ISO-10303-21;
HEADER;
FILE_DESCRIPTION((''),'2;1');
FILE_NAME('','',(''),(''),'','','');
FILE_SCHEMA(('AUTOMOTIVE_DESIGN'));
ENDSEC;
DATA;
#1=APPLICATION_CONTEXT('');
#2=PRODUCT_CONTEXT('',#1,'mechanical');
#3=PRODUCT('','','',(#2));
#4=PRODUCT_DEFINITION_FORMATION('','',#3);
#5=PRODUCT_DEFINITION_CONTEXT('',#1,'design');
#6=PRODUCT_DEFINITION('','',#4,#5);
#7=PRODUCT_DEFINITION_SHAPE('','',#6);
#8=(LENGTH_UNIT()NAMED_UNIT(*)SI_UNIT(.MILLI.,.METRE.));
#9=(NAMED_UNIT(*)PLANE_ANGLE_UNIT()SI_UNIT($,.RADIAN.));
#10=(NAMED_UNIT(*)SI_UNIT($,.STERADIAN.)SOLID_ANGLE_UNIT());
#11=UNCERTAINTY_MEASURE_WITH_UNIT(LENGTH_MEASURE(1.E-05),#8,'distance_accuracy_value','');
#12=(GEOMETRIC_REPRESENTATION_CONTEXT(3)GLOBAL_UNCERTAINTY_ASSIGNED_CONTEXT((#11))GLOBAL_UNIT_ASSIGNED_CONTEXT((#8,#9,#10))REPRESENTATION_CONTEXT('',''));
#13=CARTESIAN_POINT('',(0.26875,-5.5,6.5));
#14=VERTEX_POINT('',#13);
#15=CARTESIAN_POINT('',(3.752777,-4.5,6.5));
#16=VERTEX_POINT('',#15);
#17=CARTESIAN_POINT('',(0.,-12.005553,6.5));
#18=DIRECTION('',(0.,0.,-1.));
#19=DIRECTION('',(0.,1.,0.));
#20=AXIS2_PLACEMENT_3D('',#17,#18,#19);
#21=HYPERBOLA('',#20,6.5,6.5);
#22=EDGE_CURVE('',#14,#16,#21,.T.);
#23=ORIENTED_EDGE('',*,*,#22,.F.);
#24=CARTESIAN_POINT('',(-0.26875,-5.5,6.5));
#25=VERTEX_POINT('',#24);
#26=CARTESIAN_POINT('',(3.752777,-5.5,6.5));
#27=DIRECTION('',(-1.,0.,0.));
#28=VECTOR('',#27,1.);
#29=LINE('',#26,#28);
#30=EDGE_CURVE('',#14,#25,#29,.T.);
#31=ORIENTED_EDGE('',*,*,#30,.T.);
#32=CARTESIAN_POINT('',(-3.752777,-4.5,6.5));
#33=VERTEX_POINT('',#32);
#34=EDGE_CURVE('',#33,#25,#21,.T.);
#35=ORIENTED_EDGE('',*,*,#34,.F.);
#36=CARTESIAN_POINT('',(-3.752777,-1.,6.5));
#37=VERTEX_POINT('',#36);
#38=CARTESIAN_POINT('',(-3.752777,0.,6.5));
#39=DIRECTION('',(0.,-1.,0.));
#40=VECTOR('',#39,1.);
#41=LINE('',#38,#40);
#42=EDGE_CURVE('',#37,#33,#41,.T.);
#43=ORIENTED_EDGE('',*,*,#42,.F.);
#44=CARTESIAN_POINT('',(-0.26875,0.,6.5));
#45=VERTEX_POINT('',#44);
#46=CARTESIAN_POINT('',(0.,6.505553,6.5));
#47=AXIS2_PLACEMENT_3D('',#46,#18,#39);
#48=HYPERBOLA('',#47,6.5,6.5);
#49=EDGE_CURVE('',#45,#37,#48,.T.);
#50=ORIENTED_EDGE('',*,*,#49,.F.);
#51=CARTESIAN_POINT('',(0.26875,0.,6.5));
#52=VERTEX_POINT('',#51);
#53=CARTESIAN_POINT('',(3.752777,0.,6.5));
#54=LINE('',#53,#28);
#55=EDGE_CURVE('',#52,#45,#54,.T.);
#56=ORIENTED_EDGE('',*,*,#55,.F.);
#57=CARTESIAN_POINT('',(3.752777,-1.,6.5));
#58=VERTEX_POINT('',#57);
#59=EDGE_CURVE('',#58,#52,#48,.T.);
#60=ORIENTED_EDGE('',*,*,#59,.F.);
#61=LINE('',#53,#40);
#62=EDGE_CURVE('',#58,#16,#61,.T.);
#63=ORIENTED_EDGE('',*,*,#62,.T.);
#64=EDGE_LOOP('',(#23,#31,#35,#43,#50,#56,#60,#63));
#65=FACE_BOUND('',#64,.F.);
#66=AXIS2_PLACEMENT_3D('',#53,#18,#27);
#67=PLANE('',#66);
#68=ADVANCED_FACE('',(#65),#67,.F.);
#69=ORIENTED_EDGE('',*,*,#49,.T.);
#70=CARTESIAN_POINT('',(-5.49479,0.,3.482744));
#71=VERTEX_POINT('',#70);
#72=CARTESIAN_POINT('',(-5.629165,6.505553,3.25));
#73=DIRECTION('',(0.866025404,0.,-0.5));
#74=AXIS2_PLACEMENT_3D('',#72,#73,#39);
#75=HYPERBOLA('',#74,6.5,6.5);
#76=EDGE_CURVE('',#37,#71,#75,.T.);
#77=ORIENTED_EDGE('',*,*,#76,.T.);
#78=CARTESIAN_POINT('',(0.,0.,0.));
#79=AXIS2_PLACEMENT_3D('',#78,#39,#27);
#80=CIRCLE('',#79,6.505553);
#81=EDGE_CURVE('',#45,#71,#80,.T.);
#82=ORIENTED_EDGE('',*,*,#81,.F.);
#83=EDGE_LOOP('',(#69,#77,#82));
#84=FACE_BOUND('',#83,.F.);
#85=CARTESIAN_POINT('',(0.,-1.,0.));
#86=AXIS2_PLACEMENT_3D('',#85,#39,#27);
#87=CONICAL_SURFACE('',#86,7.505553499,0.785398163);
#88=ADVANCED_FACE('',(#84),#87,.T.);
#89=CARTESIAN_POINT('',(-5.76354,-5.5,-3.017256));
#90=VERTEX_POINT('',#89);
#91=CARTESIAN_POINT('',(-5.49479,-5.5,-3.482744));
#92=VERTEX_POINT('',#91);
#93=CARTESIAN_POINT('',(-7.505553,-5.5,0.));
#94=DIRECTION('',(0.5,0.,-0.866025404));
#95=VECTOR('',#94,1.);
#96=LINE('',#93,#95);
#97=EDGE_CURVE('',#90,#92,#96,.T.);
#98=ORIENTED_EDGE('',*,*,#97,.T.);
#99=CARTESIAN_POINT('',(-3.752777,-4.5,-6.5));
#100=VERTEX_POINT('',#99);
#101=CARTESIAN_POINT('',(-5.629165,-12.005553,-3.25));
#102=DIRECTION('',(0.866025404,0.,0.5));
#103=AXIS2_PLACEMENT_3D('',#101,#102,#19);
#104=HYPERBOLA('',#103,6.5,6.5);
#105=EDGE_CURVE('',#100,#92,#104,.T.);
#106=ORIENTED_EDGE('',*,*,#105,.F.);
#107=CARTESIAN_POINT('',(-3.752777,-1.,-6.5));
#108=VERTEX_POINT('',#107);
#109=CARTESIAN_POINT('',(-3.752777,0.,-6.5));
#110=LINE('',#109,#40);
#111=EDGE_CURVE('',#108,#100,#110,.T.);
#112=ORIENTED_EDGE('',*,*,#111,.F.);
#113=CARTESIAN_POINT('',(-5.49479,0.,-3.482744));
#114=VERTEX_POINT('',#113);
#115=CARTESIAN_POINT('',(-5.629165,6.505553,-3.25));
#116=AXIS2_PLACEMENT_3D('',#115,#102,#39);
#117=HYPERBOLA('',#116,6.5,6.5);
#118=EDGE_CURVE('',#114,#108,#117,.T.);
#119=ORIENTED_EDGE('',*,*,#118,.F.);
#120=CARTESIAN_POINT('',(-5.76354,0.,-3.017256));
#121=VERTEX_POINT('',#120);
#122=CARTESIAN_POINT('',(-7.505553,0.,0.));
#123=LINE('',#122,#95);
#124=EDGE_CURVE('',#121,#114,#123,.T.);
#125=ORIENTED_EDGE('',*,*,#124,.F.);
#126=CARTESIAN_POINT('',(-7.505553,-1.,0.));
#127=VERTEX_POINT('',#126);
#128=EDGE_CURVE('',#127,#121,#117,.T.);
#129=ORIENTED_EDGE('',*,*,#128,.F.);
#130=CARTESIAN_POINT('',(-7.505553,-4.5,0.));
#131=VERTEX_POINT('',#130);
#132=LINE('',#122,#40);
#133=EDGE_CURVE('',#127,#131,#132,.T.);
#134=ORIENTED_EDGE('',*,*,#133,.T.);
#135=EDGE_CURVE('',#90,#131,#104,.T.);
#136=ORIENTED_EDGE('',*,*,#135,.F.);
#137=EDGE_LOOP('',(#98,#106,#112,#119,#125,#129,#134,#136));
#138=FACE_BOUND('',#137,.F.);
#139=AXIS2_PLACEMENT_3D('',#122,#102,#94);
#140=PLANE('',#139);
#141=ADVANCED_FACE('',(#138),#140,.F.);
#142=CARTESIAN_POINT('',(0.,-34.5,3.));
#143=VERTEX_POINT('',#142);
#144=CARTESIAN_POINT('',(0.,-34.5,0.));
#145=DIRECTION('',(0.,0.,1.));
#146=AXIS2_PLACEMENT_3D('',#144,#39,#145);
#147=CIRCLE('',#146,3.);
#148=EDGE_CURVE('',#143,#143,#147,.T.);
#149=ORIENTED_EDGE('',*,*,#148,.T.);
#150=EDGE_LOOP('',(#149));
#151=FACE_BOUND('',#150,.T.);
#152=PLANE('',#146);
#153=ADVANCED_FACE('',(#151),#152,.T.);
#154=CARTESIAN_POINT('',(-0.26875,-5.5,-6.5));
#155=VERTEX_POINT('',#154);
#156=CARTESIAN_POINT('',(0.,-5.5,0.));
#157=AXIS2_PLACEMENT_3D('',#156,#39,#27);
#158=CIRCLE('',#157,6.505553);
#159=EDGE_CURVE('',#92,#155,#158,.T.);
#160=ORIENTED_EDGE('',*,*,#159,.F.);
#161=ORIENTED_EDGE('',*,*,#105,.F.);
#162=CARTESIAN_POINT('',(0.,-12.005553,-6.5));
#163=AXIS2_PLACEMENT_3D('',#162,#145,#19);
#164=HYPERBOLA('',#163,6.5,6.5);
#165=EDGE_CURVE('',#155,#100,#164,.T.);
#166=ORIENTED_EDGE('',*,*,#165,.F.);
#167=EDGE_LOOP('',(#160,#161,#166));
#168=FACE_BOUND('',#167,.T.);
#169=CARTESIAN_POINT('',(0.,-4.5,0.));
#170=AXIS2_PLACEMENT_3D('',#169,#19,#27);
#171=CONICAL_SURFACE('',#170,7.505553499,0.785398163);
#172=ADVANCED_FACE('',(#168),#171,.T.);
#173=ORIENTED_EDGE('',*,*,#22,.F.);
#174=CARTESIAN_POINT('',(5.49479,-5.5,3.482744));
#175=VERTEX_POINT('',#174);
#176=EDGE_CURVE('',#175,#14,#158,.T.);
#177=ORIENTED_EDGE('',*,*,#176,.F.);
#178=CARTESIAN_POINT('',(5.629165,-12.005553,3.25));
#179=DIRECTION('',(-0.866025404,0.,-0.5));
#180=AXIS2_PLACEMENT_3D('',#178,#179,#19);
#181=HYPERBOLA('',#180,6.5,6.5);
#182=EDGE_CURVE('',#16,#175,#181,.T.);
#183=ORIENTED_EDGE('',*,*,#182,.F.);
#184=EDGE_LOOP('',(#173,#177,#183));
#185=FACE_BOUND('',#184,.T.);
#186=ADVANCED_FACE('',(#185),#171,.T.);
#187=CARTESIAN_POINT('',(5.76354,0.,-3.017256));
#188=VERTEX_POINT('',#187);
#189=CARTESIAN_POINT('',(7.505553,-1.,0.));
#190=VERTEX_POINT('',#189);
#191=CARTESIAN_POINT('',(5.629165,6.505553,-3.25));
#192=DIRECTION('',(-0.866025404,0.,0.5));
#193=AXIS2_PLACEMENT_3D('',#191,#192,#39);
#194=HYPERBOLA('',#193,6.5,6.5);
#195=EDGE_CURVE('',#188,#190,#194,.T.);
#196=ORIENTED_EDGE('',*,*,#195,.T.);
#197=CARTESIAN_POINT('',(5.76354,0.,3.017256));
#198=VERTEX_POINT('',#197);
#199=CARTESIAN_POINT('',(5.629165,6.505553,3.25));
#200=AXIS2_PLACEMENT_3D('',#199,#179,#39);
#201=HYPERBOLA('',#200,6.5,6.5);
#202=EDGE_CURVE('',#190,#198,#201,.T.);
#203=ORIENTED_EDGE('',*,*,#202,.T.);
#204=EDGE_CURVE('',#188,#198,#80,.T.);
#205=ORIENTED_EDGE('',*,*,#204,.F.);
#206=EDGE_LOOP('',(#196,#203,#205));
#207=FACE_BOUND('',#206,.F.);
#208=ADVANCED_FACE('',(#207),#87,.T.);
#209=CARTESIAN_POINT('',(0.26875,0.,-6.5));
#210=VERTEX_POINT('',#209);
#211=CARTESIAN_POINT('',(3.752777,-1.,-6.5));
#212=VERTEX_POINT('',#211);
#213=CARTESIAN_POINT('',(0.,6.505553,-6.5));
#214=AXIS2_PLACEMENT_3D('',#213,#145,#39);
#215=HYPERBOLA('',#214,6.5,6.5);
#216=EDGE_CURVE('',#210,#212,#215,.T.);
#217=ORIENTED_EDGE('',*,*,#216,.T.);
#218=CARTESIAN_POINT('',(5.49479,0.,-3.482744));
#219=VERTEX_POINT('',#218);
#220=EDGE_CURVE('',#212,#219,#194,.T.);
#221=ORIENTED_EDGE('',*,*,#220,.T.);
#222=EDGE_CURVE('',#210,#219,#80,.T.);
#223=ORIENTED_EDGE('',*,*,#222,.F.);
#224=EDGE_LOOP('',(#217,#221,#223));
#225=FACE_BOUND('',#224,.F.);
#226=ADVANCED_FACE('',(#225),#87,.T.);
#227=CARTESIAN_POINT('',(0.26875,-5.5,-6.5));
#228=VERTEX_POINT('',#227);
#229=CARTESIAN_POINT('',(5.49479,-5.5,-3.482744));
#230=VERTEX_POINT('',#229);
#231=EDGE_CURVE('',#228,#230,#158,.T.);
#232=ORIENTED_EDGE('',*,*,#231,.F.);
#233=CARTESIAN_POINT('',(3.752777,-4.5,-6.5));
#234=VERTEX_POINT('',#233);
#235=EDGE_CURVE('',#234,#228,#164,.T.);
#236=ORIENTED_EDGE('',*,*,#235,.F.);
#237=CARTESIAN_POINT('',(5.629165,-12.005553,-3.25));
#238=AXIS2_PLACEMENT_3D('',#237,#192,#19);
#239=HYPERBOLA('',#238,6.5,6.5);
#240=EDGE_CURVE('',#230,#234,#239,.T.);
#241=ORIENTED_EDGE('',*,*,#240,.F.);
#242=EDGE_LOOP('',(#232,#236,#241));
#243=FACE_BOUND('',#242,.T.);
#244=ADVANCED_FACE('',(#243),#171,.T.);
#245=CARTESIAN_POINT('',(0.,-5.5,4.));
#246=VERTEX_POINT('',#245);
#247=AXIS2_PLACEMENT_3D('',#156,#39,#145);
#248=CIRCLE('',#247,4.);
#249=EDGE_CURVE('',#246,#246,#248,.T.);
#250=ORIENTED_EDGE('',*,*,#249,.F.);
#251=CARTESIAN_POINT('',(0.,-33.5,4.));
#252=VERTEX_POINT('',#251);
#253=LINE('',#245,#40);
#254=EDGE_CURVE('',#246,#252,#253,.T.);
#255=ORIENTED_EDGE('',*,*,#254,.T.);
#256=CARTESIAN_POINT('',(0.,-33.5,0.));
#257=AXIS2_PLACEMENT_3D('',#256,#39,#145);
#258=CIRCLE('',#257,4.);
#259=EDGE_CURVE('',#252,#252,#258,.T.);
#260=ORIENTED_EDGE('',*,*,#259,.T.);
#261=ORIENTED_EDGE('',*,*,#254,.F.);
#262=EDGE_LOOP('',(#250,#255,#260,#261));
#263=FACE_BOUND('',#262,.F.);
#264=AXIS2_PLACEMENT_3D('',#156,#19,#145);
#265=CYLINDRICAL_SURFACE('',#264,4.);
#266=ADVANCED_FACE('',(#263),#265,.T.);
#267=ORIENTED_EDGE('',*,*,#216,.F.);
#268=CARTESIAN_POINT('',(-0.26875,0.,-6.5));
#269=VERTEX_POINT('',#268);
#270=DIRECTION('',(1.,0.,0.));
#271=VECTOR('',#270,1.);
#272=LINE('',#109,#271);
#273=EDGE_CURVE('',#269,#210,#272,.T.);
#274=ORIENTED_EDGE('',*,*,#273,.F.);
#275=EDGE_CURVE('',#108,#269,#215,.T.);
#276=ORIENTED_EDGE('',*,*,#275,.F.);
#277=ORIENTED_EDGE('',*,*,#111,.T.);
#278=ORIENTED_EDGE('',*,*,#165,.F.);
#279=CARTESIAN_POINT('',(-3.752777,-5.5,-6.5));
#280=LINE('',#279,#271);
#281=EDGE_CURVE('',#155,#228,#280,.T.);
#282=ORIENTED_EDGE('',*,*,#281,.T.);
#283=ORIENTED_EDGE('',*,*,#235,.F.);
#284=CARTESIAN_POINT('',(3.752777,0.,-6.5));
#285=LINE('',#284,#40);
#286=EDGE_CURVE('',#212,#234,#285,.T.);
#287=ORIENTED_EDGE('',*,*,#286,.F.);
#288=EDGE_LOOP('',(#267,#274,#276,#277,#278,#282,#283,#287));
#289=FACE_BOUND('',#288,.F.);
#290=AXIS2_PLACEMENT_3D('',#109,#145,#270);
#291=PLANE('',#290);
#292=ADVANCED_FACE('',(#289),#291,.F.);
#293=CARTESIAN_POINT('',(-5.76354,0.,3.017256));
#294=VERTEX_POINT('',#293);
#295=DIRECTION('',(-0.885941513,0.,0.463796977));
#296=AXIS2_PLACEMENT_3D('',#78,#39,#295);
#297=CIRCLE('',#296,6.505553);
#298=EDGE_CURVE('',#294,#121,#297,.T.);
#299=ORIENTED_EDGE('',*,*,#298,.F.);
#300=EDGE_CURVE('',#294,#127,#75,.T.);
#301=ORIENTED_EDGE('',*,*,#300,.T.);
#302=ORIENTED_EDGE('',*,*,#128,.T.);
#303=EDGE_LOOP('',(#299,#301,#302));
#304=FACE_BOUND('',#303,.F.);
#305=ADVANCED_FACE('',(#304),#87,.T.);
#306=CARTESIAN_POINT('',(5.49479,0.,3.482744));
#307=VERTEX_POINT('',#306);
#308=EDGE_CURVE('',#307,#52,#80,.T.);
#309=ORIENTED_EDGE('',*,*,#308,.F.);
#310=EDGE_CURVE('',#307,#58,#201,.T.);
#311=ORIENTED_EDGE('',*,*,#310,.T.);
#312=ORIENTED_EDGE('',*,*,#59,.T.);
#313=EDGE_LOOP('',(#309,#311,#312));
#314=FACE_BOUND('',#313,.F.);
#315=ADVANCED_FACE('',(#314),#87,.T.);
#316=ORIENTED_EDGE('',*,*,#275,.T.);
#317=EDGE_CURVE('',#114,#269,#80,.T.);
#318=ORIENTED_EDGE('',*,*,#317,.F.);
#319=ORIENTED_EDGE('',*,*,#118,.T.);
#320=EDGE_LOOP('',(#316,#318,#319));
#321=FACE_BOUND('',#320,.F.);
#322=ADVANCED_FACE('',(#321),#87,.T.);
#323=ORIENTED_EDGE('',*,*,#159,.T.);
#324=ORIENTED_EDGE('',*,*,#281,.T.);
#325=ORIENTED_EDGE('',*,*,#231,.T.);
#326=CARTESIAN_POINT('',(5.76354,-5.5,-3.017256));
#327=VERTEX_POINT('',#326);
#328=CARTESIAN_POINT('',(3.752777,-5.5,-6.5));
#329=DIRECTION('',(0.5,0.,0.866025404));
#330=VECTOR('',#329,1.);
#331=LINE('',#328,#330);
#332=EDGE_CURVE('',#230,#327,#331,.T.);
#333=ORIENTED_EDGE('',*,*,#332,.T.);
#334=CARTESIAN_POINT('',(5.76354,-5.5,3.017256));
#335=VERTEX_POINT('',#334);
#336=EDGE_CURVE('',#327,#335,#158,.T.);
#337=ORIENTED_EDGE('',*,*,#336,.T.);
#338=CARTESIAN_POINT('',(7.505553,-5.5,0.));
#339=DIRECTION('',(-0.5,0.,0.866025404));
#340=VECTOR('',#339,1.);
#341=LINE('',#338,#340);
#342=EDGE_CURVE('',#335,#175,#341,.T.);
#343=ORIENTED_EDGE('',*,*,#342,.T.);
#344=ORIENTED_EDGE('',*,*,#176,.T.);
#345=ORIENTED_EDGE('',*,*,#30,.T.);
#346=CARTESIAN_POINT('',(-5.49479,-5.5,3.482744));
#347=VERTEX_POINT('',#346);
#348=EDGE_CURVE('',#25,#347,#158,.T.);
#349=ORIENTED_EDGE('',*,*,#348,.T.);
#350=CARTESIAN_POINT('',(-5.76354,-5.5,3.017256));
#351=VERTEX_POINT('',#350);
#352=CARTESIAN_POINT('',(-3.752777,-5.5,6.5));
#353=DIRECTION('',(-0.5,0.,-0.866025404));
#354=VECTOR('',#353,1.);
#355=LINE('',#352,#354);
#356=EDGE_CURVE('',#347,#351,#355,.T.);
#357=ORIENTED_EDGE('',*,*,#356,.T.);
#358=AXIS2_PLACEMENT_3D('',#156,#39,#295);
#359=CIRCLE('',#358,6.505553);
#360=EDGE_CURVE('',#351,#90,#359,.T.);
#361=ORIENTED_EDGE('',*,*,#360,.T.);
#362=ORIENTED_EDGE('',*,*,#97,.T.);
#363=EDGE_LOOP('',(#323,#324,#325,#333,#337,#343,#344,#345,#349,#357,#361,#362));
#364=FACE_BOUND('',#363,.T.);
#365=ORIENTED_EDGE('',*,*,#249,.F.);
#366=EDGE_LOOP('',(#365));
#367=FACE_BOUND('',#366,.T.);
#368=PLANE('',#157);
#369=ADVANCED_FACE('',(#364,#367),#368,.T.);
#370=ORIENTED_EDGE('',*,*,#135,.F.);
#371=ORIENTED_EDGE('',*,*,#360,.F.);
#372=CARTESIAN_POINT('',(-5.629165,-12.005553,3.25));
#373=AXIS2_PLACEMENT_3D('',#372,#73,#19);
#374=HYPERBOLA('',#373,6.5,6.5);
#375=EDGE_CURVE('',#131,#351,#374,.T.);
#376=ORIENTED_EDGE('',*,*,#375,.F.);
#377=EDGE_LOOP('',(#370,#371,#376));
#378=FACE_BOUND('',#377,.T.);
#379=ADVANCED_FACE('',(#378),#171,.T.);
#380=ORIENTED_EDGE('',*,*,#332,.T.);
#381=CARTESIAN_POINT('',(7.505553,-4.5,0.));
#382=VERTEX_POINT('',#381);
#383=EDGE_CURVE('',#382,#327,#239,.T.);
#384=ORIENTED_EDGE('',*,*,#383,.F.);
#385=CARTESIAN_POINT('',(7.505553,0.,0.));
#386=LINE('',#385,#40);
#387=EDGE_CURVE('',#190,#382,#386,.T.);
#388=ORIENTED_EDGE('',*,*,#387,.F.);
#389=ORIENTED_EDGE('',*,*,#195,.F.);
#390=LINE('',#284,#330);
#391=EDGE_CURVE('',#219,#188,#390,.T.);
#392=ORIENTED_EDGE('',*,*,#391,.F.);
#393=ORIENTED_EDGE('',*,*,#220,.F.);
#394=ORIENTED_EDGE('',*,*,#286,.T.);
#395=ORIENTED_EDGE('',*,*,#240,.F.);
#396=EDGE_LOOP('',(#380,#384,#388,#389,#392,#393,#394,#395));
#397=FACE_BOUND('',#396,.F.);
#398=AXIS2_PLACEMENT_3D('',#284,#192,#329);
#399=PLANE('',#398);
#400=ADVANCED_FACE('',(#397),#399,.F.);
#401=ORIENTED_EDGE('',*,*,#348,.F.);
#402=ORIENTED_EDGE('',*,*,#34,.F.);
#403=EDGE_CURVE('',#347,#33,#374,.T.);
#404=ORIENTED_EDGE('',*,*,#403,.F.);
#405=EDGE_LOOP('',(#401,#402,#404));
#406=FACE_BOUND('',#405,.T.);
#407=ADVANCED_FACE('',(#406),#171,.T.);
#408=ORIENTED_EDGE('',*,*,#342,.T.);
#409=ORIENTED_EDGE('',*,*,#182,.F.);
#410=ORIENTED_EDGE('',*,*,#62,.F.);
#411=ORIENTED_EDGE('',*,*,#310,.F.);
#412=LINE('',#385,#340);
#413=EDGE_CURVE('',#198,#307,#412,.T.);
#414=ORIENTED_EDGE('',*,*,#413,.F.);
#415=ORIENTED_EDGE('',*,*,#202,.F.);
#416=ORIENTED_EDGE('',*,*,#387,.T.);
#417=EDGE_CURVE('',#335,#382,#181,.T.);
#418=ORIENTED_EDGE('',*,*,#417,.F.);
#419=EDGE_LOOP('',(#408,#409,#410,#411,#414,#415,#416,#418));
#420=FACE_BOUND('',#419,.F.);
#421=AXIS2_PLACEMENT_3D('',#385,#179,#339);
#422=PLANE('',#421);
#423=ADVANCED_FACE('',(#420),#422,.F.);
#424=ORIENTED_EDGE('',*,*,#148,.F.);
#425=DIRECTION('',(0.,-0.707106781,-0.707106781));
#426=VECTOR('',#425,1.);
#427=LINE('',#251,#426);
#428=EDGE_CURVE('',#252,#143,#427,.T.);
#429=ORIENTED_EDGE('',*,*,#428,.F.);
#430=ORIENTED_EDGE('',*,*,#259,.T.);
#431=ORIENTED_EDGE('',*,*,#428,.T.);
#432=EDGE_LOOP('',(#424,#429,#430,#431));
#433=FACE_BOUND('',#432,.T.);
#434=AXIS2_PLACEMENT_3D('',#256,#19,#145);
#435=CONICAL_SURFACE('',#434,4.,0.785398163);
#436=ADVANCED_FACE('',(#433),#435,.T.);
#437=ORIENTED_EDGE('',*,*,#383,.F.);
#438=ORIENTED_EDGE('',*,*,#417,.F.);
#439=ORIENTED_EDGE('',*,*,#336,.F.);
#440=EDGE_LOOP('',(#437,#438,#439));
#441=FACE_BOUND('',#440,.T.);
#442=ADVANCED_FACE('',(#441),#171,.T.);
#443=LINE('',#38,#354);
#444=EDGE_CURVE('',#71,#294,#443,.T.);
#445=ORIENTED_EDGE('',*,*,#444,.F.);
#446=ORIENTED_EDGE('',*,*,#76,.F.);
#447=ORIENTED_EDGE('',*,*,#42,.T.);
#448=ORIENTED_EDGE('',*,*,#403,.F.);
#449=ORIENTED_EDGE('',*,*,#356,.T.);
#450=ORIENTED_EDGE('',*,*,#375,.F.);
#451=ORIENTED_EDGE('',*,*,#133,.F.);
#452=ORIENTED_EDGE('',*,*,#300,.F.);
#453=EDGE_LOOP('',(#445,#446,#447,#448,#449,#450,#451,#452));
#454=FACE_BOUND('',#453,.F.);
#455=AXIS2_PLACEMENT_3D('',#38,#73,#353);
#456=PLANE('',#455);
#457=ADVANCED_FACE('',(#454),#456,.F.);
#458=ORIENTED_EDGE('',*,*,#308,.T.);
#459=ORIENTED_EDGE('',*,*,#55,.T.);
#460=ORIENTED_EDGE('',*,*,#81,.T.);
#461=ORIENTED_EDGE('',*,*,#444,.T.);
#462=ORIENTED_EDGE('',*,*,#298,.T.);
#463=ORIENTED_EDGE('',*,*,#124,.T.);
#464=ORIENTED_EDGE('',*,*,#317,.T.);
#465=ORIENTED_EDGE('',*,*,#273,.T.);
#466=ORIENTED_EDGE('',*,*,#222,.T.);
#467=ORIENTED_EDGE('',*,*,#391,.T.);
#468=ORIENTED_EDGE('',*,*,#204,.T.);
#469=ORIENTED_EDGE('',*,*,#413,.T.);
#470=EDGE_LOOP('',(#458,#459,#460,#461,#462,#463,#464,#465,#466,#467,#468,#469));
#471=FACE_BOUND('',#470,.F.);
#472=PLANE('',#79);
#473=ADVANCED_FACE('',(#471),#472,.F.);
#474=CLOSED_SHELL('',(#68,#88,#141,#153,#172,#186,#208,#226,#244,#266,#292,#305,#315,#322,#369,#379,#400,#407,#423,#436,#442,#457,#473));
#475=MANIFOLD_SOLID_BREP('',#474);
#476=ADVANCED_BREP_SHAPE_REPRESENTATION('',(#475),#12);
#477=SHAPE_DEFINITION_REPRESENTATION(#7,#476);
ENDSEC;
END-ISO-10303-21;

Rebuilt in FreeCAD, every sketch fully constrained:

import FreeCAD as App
import Part
import Sketcher
from FreeCAD import Vector
Q = App.Units.Quantity


def edges_at(feature, points):
    """Names of the edges that pass closest to the given points."""
    edges = feature.Shape.Edges
    near = lambda p: min(range(len(edges)), key=lambda i: edges[i].distToShape(Part.Vertex(*p))[0])
    return sorted({f"Edge{near(p) + 1}" for p in points})


def add_polygon(sketch, points):
    """Adds a closed chain of lines whose ends are joined by coincident constraints."""
    first, n = sketch.GeometryCount, len(points)
    for a, b in zip(points, points[1:] + points[:1]):
        sketch.addGeometry(Part.LineSegment(App.Vector(*a, 0), App.Vector(*b, 0)), False)
    for i in range(n):
        sketch.addConstraint(Sketcher.Constraint("Coincident", first + i, 2, first + (i + 1) % n, 1))

doc = App.newDocument("Part")
body = doc.addObject("PartDesign::Body", "Body")

sketch1 = doc.addObject("Sketcher::SketchObject", "Sketch")
body.addObject(sketch1)
sketch1.AttachmentSupport = (doc.XZ_Plane, [""])
sketch1.MapMode = "FlatFace"
add_polygon(sketch1, [(4, -6), (-4, -6), (-8, 0), (-4, 6), (4, 6), (8, 0)])
sketch1.addConstraint(Sketcher.Constraint("Horizontal", 0))
sketch1.addConstraint(Sketcher.Constraint("Horizontal", 3))
sketch1.addConstraint(Sketcher.Constraint("Symmetric", 0, 2, 3, 2, -1, 1))
sketch1.addConstraint(Sketcher.Constraint("Symmetric", 1, 2, 4, 2, -1, 1))
sketch1.addConstraint(Sketcher.Constraint("PointOnObject", 1, 2, -1))
sketch1.addConstraint(Sketcher.Constraint("Parallel", 2, 5))
sketch1.addConstraint(Sketcher.Constraint("Vertical", 0, 2, 2, 2))
sketch1.addConstraint(Sketcher.Constraint("Angle", 1, Q("120 deg")))
sketch1.addConstraint(Sketcher.Constraint("DistanceY", 0, 2, 2, 2, Q("13 mm")))
sketch1.addConstraint(Sketcher.Constraint("DistanceX", 0, 2, 0, 1, Q("7.505554 mm")))
pad1 = doc.addObject("PartDesign::Pad", "Pad")
body.addObject(pad1)
pad1.Profile = sketch1
pad1.Length = 5.5

sketch2 = doc.addObject("Sketcher::SketchObject", "Sketch001")
body.addObject(sketch2)
sketch2.AttachmentSupport = (doc.XZ_Plane, [""])
sketch2.MapMode = "FlatFace"
sketch2.AttachmentOffset = App.Placement(Vector(0, 0, 5.5), App.Rotation())
sketch2.addGeometry(Part.Circle(Vector(0, 0, 0), Vector(0, 0, 1), 4), False)
sketch2.addConstraint(Sketcher.Constraint("Coincident", 0, 3, -1, 1))
sketch2.addConstraint(Sketcher.Constraint("Diameter", 0, Q("8 mm")))
pad2 = doc.addObject("PartDesign::Pad", "Pad001")
body.addObject(pad2)
pad2.Profile = sketch2
pad2.Length = 29
doc.recompute()

chamfer = doc.addObject("PartDesign::Chamfer", "Chamfer")
body.addObject(chamfer)
chamfer.Base = (pad2, edges_at(pad2, [(0, -34.5, -4)]))
chamfer.Size = 1

sketch3 = doc.addObject("Sketcher::SketchObject", "Sketch002")
body.addObject(sketch3)
sketch3.AttachmentSupport = (doc.XY_Plane, [""])
sketch3.MapMode = "FlatFace"
add_polygon(sketch3, [(-7.5, -1), (-6.5, 0), (-7.5, 0)])
add_polygon(sketch3, [(-6.5, -5.5), (-7.5, -4.5), (-7.5, -5.5)])
sketch3.addConstraint(Sketcher.Constraint("Horizontal", 1))
sketch3.addConstraint(Sketcher.Constraint("Vertical", 2))
sketch3.addConstraint(Sketcher.Constraint("Vertical", 4))
sketch3.addConstraint(Sketcher.Constraint("Horizontal", 5))
sketch3.addConstraint(Sketcher.Constraint("PointOnObject", 0, 2, -1))
sketch3.addConstraint(Sketcher.Constraint("Perpendicular", 0, 3))
sketch3.addConstraint(Sketcher.Constraint("Vertical", 2, 2, 3, 2))
sketch3.addConstraint(Sketcher.Constraint("Vertical", 0, 2, 5, 2))
sketch3.addConstraint(Sketcher.Constraint("Equal", 5, 2))
sketch3.addConstraint(Sketcher.Constraint("DistanceX", 1, 2, 1, 1, Q("1 mm")))
sketch3.addConstraint(Sketcher.Constraint("DistanceY", 3, 2, -1, 1, Q("4.5 mm")))
sketch3.addConstraint(Sketcher.Constraint("DistanceX", 0, 2, -1, 1, Q("6.505553 mm")))
groove = doc.addObject("PartDesign::Groove", "Groove")
body.addObject(groove)
groove.Profile = sketch3
groove.ReferenceAxis = (sketch3, ["V_Axis"])
groove.Angle = 360

doc.recompute()
